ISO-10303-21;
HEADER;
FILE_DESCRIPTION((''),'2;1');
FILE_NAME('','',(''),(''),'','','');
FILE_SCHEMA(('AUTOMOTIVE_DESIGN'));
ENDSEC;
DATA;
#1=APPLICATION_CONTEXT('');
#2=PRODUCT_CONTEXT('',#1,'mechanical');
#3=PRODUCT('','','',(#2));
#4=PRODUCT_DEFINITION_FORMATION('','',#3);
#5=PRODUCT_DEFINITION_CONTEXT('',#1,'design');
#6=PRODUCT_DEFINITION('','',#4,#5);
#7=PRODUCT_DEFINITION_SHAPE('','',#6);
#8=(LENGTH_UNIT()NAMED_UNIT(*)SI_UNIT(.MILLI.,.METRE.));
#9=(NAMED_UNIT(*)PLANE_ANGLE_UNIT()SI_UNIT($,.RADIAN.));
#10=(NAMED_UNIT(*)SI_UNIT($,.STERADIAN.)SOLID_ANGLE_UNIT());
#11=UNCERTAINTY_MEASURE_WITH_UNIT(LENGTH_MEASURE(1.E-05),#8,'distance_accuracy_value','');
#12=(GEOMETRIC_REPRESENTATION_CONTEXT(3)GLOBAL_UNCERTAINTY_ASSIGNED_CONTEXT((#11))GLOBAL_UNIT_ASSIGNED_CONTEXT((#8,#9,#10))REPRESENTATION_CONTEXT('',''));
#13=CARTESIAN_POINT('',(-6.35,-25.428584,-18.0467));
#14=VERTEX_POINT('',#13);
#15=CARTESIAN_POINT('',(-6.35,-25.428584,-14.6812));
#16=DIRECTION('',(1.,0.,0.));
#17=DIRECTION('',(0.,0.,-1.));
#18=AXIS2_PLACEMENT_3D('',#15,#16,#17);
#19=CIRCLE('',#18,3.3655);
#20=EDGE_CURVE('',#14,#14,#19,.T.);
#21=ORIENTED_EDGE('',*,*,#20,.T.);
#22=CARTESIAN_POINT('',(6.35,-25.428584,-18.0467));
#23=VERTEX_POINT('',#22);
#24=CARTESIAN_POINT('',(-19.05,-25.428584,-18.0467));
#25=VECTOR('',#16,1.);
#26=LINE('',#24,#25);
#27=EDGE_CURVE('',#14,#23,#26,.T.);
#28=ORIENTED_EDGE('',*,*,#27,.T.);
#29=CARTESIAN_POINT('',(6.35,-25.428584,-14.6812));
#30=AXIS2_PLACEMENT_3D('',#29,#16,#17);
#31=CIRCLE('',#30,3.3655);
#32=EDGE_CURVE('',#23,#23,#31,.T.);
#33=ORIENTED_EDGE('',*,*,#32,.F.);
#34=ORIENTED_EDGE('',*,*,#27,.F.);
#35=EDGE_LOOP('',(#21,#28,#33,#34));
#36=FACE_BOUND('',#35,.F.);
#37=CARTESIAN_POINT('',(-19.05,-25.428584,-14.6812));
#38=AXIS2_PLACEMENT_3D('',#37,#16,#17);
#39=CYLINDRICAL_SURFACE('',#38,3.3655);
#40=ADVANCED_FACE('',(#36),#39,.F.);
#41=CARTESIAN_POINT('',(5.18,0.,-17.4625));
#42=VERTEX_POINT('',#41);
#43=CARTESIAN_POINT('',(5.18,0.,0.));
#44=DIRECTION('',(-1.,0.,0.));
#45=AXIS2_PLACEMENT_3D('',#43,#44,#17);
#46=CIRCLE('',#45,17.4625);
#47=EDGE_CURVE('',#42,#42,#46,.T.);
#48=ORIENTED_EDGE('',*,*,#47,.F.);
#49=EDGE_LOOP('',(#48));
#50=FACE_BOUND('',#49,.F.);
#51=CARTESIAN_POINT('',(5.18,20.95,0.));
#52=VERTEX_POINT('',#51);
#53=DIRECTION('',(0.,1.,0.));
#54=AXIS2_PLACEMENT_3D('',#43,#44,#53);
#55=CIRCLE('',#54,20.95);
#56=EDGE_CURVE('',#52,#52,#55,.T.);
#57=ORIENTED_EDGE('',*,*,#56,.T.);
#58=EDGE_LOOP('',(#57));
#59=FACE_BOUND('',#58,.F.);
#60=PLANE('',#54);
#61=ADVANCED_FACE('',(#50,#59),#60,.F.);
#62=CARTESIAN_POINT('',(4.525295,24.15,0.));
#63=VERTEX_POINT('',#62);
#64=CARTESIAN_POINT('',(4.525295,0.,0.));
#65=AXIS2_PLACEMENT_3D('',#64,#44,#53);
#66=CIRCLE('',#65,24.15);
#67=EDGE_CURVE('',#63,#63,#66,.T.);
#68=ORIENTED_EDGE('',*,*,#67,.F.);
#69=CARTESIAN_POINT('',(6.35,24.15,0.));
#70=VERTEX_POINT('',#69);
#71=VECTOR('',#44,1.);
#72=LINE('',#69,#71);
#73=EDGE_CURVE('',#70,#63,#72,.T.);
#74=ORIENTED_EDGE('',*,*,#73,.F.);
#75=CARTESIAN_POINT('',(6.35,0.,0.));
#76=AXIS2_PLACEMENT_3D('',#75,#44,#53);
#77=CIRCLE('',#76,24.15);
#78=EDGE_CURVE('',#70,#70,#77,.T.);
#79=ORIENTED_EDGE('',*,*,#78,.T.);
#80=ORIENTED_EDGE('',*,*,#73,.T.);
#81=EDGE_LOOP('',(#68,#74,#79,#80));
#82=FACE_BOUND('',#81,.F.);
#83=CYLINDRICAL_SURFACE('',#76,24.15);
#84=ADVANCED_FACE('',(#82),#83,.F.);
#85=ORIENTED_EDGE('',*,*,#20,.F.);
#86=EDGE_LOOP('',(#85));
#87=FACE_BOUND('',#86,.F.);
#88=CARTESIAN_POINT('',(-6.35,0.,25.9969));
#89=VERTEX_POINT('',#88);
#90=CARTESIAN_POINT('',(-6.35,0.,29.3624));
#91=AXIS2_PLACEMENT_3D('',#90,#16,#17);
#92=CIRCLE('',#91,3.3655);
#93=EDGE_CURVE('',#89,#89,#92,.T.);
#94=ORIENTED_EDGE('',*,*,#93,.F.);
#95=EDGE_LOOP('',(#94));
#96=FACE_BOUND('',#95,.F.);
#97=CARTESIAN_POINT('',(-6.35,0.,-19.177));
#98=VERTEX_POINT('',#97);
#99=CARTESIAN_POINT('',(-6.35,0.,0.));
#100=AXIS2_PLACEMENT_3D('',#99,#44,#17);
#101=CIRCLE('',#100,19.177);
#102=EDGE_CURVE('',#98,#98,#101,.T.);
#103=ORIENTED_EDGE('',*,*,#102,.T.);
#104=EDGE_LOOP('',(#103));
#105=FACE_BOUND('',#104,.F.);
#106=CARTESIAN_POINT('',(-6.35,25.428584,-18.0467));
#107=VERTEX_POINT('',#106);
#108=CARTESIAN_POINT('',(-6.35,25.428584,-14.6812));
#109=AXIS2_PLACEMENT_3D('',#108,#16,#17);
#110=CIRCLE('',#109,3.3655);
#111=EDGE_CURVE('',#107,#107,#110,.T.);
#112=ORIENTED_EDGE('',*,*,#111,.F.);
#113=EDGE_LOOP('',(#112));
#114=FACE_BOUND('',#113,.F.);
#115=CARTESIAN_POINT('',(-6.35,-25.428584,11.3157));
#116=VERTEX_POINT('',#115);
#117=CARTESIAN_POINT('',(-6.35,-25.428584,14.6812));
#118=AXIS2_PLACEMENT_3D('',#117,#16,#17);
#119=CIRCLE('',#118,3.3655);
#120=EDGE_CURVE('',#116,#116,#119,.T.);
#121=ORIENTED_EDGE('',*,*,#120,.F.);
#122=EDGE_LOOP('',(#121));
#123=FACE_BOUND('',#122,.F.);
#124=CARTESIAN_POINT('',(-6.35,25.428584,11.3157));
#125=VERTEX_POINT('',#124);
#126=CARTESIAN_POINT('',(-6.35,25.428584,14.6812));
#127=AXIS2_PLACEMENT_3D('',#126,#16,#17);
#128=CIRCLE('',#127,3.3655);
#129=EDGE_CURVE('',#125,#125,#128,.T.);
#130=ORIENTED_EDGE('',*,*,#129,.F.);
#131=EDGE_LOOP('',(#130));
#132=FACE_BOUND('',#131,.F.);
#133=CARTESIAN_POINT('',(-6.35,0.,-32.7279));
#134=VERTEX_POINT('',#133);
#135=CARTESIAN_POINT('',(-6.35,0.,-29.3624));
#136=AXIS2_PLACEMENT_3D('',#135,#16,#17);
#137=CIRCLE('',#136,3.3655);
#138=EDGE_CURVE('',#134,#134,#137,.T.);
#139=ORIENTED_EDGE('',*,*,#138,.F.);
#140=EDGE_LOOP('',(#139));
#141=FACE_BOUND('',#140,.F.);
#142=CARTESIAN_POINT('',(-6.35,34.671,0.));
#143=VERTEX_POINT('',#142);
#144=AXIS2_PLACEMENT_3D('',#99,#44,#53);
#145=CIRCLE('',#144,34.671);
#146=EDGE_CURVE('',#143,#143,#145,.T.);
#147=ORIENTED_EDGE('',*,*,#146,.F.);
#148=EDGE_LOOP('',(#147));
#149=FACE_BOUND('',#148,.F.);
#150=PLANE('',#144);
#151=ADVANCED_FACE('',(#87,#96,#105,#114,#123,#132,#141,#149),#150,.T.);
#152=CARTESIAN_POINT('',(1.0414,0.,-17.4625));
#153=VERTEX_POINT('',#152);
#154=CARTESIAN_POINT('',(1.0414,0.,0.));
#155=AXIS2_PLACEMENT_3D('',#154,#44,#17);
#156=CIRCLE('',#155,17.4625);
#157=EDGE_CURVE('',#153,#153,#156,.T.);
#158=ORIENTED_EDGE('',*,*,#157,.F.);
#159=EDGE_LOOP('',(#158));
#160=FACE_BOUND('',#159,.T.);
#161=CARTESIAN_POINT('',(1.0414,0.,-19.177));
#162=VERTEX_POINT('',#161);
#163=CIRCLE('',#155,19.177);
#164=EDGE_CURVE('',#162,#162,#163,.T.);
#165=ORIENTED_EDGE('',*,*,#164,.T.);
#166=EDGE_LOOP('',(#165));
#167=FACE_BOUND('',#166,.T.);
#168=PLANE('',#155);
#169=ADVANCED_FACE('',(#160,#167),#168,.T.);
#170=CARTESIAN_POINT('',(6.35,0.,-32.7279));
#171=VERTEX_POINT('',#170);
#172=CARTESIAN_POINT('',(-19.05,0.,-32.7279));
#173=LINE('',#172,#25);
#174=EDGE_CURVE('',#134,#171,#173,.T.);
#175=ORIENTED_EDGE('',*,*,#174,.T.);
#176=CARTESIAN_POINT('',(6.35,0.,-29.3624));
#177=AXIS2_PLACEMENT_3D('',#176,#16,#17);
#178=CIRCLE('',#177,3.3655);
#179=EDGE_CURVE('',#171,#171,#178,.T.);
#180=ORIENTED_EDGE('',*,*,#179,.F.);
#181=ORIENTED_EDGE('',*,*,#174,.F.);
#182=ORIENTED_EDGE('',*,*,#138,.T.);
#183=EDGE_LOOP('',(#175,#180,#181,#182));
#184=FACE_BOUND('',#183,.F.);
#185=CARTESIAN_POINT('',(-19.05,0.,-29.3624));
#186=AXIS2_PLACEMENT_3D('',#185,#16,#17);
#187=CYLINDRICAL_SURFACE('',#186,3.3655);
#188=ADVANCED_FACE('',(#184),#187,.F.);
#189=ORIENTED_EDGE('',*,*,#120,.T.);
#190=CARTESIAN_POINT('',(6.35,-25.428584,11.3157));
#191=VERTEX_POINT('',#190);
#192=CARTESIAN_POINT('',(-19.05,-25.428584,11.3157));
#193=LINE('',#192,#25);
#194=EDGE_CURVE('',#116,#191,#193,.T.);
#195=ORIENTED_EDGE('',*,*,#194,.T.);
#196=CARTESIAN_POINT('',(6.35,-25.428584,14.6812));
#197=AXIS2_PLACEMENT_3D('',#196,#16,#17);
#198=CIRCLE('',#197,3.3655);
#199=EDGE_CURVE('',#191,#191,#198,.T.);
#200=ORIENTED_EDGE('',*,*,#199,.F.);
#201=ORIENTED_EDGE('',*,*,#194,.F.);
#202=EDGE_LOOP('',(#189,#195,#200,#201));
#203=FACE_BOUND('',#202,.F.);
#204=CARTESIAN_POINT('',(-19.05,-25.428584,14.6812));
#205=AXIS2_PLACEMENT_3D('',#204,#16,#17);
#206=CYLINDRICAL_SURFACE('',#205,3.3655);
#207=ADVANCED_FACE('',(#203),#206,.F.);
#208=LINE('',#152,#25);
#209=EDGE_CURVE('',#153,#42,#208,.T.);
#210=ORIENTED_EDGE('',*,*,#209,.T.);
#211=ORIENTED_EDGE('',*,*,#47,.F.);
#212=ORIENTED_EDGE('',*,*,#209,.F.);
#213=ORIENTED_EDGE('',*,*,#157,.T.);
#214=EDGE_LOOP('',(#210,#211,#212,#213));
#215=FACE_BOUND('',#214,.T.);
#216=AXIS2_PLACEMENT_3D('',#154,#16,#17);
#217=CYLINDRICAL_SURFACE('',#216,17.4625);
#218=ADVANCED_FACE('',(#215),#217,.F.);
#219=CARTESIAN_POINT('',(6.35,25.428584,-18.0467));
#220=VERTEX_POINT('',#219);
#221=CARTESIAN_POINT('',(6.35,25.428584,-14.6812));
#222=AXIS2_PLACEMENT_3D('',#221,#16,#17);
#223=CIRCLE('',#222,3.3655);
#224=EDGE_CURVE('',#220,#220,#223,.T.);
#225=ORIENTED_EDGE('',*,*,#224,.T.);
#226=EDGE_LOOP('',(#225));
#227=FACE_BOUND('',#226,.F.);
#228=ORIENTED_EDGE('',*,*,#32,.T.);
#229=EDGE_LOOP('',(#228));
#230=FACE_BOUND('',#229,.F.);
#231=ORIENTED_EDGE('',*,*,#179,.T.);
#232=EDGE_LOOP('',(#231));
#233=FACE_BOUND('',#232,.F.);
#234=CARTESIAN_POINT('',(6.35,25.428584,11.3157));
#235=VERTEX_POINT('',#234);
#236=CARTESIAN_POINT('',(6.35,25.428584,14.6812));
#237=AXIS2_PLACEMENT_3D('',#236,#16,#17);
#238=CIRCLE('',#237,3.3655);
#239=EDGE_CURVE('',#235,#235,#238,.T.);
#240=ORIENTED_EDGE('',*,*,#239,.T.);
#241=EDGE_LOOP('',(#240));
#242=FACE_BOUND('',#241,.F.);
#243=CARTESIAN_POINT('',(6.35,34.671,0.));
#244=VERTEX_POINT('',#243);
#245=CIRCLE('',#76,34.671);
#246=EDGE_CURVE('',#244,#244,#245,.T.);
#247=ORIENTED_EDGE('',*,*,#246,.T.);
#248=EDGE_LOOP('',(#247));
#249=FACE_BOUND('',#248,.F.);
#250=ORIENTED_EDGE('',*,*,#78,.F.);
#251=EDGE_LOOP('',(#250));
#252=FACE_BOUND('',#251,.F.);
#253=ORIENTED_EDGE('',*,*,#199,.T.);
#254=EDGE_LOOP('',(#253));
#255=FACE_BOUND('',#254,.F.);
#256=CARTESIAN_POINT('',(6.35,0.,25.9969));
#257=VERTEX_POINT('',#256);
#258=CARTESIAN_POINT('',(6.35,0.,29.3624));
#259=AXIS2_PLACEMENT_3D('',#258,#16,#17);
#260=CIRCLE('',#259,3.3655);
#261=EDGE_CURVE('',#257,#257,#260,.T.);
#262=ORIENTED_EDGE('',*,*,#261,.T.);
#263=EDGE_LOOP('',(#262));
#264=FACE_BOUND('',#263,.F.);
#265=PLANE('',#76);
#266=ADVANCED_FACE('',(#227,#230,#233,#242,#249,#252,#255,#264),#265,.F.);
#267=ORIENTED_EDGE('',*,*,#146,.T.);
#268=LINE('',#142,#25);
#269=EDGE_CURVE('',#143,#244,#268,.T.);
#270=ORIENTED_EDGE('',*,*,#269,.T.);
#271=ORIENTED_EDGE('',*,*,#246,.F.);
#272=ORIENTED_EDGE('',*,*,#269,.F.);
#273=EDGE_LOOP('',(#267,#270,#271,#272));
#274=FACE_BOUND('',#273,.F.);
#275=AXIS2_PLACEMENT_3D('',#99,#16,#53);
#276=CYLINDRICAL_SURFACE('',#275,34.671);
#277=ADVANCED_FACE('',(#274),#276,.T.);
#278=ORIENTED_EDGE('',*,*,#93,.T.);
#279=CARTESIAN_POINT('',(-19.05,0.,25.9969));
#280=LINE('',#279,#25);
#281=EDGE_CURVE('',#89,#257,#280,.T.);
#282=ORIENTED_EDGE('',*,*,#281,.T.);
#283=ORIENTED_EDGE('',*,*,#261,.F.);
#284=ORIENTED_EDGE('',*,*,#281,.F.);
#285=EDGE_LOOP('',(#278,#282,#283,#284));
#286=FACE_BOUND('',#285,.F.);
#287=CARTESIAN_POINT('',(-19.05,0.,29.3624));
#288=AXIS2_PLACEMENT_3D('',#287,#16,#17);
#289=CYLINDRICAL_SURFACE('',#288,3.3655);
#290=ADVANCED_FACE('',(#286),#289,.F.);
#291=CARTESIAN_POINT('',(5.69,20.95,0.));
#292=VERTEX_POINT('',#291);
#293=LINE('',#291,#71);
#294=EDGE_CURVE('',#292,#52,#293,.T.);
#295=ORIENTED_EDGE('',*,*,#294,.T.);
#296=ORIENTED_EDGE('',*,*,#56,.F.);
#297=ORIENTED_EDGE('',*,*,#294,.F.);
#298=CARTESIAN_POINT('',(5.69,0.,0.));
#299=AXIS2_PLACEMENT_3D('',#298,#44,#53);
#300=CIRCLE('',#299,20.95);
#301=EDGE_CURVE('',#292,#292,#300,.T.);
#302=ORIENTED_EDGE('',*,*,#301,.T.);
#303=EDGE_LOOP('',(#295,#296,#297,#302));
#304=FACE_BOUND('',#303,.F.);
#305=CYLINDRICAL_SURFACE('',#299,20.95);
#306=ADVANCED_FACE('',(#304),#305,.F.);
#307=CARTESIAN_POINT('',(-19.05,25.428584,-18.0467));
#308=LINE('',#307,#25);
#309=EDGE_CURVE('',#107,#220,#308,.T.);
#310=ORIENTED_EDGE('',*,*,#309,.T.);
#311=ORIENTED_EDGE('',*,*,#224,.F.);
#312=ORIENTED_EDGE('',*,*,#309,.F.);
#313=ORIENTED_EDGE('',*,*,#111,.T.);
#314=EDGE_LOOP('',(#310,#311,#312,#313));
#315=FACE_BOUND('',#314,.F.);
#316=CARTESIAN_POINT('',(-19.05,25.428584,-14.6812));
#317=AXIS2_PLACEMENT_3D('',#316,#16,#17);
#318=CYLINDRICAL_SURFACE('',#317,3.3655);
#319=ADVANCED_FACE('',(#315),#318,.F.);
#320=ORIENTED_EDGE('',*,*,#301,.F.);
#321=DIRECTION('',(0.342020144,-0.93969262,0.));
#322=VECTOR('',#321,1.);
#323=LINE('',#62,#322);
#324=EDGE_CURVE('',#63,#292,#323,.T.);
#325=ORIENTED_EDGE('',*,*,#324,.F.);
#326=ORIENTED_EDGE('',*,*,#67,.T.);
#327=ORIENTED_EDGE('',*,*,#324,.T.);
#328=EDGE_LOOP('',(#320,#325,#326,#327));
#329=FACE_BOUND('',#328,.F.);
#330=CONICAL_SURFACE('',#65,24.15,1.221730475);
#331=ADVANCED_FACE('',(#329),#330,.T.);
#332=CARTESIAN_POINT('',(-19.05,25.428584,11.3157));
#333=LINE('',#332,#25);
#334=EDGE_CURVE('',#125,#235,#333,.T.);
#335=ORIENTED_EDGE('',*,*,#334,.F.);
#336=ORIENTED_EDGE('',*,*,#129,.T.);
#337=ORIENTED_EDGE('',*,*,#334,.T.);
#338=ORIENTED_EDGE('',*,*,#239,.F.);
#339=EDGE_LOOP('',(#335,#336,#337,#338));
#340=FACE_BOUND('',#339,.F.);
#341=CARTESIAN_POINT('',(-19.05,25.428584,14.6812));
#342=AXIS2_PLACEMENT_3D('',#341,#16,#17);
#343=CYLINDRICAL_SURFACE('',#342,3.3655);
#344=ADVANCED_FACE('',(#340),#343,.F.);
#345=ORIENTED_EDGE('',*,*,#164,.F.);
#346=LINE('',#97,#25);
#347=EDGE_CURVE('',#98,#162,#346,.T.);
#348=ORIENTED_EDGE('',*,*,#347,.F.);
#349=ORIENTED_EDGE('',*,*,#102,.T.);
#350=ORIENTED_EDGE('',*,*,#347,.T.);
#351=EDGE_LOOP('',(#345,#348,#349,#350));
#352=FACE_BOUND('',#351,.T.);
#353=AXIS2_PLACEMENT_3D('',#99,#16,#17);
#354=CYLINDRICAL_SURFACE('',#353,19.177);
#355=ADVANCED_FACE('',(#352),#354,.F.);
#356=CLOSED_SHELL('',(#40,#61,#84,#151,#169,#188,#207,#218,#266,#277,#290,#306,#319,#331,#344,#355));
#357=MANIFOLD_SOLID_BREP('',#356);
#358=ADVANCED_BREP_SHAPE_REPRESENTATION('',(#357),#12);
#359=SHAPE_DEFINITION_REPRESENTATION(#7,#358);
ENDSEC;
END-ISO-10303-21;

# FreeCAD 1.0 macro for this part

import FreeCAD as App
import Part
import Sketcher
from FreeCAD import Vector
Q = App.Units.Quantity

doc = App.newDocument("Part")
body = doc.addObject("PartDesign::Body", "Body")

# Sketch on XY plane
sketch1 = body.newObject("Sketcher::SketchObject", "Sketch")
sketch1.AttachmentSupport = (doc.getObject("XY_Plane"), [""])
sketch1.MapMode = "FlatFace"
sketch1.addGeometry(Part.LineSegment(Vector(5.2, 20.9, 0), Vector(5.2, 0, 0)), False)
sketch1.addGeometry(Part.LineSegment(Vector(5.2, 0, 0), Vector(-6.3, 0, 0)), False)
sketch1.addGeometry(Part.LineSegment(Vector(-6.3, 0, 0), Vector(-6.3, 34.7, 0)), False)
sketch1.addGeometry(Part.LineSegment(Vector(-6.3, 34.7, 0), Vector(6.3, 34.7, 0)), False)
sketch1.addGeometry(Part.LineSegment(Vector(6.3, 34.7, 0), Vector(6.3, 24.1, 0)), False)
sketch1.addGeometry(Part.LineSegment(Vector(6.3, 24.1, 0), Vector(4.5, 24.1, 0)), False)
sketch1.addGeometry(Part.LineSegment(Vector(4.5, 24.1, 0), Vector(5.7, 20.9, 0)), False)
sketch1.addGeometry(Part.LineSegment(Vector(5.7, 20.9, 0), Vector(5.2, 20.9, 0)), False)
sketch1.addConstraint(Sketcher.Constraint("Coincident", 0, 2, 1, 1))
sketch1.addConstraint(Sketcher.Constraint("Coincident", 1, 2, 2, 1))
sketch1.addConstraint(Sketcher.Constraint("Coincident", 2, 2, 3, 1))
sketch1.addConstraint(Sketcher.Constraint("Coincident", 3, 2, 4, 1))
sketch1.addConstraint(Sketcher.Constraint("Coincident", 4, 2, 5, 1))
sketch1.addConstraint(Sketcher.Constraint("Coincident", 5, 2, 6, 1))
sketch1.addConstraint(Sketcher.Constraint("Coincident", 6, 2, 7, 1))
sketch1.addConstraint(Sketcher.Constraint("Coincident", 7, 2, 0, 1))
sketch1.addConstraint(Sketcher.Constraint("Vertical", 0))
sketch1.addConstraint(Sketcher.Constraint("Horizontal", 1))
sketch1.addConstraint(Sketcher.Constraint("Vertical", 2))
sketch1.addConstraint(Sketcher.Constraint("Horizontal", 3))
sketch1.addConstraint(Sketcher.Constraint("Vertical", 4))
sketch1.addConstraint(Sketcher.Constraint("Horizontal", 5))
sketch1.addConstraint(Sketcher.Constraint("Horizontal", 7))
sketch1.addConstraint(Sketcher.Constraint("PointOnObject", 0, 2, -1))
sketch1.addConstraint(Sketcher.Constraint("DistanceX", 3, 1, 3, 2, Q("0.5 in")))
sketch1.addConstraint(Sketcher.Constraint("Angle", 6, Q("-70 deg")))
sketch1.addConstraint(Sketcher.Constraint("DistanceY", 2, 1, 2, 2, Q("1.365 in")))
sketch1.addConstraint(Sketcher.Constraint("DistanceX", 1, 2, -1, 1, Q("0.25 in")))
sketch1.addConstraint(Sketcher.Constraint("DistanceX", 1, 2, 1, 1, 11.53))
sketch1.addConstraint(Sketcher.Constraint("DistanceX", 7, 2, 7, 1, 0.51))
sketch1.addConstraint(Sketcher.Constraint("DistanceY", 0, 2, 0, 1, 20.95))
sketch1.addConstraint(Sketcher.Constraint("DistanceY", 4, 2, 4, 1, 10.521))
revolution = body.newObject("PartDesign::Revolution", "Revolution")
revolution.Profile = sketch1
revolution.ReferenceAxis = (sketch1, ["H_Axis"])
revolution.Angle = 360

# Sketch on XZ plane
sketch2 = body.newObject("Sketcher::SketchObject", "Sketch001")
sketch2.AttachmentSupport = (doc.getObject("XZ_Plane"), [""])
sketch2.MapMode = "FlatFace"
sketch2.addGeometry(Part.LineSegment(Vector(-6.3, 0, 0), Vector(5.2, 0, 0)), False)
sketch2.addGeometry(Part.LineSegment(Vector(5.2, 0, 0), Vector(5.2, -17.5, 0)), False)
sketch2.addGeometry(Part.LineSegment(Vector(5.2, -17.5, 0), Vector(1, -17.5, 0)), False)
sketch2.addGeometry(Part.LineSegment(Vector(1, -17.5, 0), Vector(1, -19.2, 0)), False)
sketch2.addGeometry(Part.LineSegment(Vector(1, -19.2, 0), Vector(-6.3, -19.2, 0)), False)
sketch2.addGeometry(Part.LineSegment(Vector(-6.3, -19.2, 0), Vector(-6.3, 0, 0)), False)
sketch2.addConstraint(Sketcher.Constraint("Coincident", 0, 2, 1, 1))
sketch2.addConstraint(Sketcher.Constraint("Coincident", 1, 2, 2, 1))
sketch2.addConstraint(Sketcher.Constraint("Coincident", 2, 2, 3, 1))
sketch2.addConstraint(Sketcher.Constraint("Coincident", 3, 2, 4, 1))
sketch2.addConstraint(Sketcher.Constraint("Coincident", 4, 2, 5, 1))
sketch2.addConstraint(Sketcher.Constraint("Coincident", 5, 2, 0, 1))
sketch2.addConstraint(Sketcher.Constraint("Horizontal", 0))
sketch2.addConstraint(Sketcher.Constraint("Vertical", 1))
sketch2.addConstraint(Sketcher.Constraint("Horizontal", 2))
sketch2.addConstraint(Sketcher.Constraint("Vertical", 3))
sketch2.addConstraint(Sketcher.Constraint("Horizontal", 4))
sketch2.addConstraint(Sketcher.Constraint("Vertical", 5))
sketch2.addConstraint(Sketcher.Constraint("PointOnObject", 0, 2, -1))
sketch2.addConstraint(Sketcher.Constraint("DistanceX", 4, 2, 4, 1, Q("0.291 in")))
sketch2.addConstraint(Sketcher.Constraint("DistanceY", 1, 2, 1, 1, Q("0.6875 in")))
sketch2.addConstraint(Sketcher.Constraint("DistanceY", 5, 1, 5, 2, Q("0.755 in")))
sketch2.addConstraint(Sketcher.Constraint("DistanceX", 4, 2, -1, 1, Q("0.25 in")))
sketch2.addConstraint(Sketcher.Constraint("DistanceX", 0, 1, 0, 2, 11.53))
groove = body.newObject("PartDesign::Groove", "Groove")
groove.Profile = sketch2
groove.ReferenceAxis = (sketch2, ["H_Axis"])
groove.Angle = 360

# Sketch on YZ plane
sketch3 = body.newObject("Sketcher::SketchObject", "Sketch002")
sketch3.AttachmentSupport = (doc.getObject("YZ_Plane"), [""])
sketch3.MapMode = "FlatFace"
sketch3.AttachmentOffset = App.Placement(Vector(0, 0, -0.25 * 25.4), App.Rotation())
sketch3.addGeometry(Part.Circle(Vector(-25.4, 14.7, 0), Vector(0, 0, 1), 3.4), False)
sketch3.addGeometry(Part.Circle(Vector(0, 29.4, 0), Vector(0, 0, 1), 3.4), False)
sketch3.addGeometry(Part.Circle(Vector(25.4, 14.7, 0), Vector(0, 0, 1), 3.4), False)
sketch3.addGeometry(Part.Circle(Vector(25.4, -14.7, 0), Vector(0, 0, 1), 3.4), False)
sketch3.addGeometry(Part.Circle(Vector(-25.4, -14.7, 0), Vector(0, 0, 1), 3.4), False)
sketch3.addGeometry(Part.Circle(Vector(0, -29.4, 0), Vector(0, 0, 1), 3.4), False)
sketch3.addConstraint(Sketcher.Constraint("Equal", 0, 1))
sketch3.addConstraint(Sketcher.Constraint("Equal", 1, 2))
sketch3.addConstraint(Sketcher.Constraint("Equal", 2, 3))
sketch3.addConstraint(Sketcher.Constraint("Equal", 3, 4))
sketch3.addConstraint(Sketcher.Constraint("Equal", 4, 5))
sketch3.addConstraint(Sketcher.Constraint("Symmetric", 0, 3, 3, 3, -1, 1))
sketch3.addConstraint(Sketcher.Constraint("Symmetric", 2, 3, 4, 3, -1, 1))
sketch3.addConstraint(Sketcher.Constraint("Symmetric", 1, 3, 5, 3, -1, 1))
sketch3.addConstraint(Sketcher.Constraint("Symmetric", 0, 3, 2, 3, -2))
sketch3.addConstraint(Sketcher.Constraint("PointOnObject", 1, 3, -2))
sketch3.addConstraint(Sketcher.Constraint("Diameter", 0, Q("0.265 in")))
sketch3.addConstraint(Sketcher.Constraint("DistanceY", -1, 1, 0, 3, Q("0.578 in")))
sketch3.addConstraint(Sketcher.Constraint("DistanceY", -1, 1, 1, 3, Q("1.156 in")))
sketch3.addConstraint(Sketcher.Constraint("DistanceX", 0, 3, 2, 3, 50.857169))
doc.recompute()
hole = body.newObject("PartDesign::Hole", "Hole")
hole.Profile = sketch3
hole.ThreadType = "None"
hole.Diameter = Q("0.265 in")
hole.DepthType = "Dimension"
hole.Depth = Q("0.5 in")
hole.DrillPoint = "Flat"
hole.Reversed = True

doc.recompute()
